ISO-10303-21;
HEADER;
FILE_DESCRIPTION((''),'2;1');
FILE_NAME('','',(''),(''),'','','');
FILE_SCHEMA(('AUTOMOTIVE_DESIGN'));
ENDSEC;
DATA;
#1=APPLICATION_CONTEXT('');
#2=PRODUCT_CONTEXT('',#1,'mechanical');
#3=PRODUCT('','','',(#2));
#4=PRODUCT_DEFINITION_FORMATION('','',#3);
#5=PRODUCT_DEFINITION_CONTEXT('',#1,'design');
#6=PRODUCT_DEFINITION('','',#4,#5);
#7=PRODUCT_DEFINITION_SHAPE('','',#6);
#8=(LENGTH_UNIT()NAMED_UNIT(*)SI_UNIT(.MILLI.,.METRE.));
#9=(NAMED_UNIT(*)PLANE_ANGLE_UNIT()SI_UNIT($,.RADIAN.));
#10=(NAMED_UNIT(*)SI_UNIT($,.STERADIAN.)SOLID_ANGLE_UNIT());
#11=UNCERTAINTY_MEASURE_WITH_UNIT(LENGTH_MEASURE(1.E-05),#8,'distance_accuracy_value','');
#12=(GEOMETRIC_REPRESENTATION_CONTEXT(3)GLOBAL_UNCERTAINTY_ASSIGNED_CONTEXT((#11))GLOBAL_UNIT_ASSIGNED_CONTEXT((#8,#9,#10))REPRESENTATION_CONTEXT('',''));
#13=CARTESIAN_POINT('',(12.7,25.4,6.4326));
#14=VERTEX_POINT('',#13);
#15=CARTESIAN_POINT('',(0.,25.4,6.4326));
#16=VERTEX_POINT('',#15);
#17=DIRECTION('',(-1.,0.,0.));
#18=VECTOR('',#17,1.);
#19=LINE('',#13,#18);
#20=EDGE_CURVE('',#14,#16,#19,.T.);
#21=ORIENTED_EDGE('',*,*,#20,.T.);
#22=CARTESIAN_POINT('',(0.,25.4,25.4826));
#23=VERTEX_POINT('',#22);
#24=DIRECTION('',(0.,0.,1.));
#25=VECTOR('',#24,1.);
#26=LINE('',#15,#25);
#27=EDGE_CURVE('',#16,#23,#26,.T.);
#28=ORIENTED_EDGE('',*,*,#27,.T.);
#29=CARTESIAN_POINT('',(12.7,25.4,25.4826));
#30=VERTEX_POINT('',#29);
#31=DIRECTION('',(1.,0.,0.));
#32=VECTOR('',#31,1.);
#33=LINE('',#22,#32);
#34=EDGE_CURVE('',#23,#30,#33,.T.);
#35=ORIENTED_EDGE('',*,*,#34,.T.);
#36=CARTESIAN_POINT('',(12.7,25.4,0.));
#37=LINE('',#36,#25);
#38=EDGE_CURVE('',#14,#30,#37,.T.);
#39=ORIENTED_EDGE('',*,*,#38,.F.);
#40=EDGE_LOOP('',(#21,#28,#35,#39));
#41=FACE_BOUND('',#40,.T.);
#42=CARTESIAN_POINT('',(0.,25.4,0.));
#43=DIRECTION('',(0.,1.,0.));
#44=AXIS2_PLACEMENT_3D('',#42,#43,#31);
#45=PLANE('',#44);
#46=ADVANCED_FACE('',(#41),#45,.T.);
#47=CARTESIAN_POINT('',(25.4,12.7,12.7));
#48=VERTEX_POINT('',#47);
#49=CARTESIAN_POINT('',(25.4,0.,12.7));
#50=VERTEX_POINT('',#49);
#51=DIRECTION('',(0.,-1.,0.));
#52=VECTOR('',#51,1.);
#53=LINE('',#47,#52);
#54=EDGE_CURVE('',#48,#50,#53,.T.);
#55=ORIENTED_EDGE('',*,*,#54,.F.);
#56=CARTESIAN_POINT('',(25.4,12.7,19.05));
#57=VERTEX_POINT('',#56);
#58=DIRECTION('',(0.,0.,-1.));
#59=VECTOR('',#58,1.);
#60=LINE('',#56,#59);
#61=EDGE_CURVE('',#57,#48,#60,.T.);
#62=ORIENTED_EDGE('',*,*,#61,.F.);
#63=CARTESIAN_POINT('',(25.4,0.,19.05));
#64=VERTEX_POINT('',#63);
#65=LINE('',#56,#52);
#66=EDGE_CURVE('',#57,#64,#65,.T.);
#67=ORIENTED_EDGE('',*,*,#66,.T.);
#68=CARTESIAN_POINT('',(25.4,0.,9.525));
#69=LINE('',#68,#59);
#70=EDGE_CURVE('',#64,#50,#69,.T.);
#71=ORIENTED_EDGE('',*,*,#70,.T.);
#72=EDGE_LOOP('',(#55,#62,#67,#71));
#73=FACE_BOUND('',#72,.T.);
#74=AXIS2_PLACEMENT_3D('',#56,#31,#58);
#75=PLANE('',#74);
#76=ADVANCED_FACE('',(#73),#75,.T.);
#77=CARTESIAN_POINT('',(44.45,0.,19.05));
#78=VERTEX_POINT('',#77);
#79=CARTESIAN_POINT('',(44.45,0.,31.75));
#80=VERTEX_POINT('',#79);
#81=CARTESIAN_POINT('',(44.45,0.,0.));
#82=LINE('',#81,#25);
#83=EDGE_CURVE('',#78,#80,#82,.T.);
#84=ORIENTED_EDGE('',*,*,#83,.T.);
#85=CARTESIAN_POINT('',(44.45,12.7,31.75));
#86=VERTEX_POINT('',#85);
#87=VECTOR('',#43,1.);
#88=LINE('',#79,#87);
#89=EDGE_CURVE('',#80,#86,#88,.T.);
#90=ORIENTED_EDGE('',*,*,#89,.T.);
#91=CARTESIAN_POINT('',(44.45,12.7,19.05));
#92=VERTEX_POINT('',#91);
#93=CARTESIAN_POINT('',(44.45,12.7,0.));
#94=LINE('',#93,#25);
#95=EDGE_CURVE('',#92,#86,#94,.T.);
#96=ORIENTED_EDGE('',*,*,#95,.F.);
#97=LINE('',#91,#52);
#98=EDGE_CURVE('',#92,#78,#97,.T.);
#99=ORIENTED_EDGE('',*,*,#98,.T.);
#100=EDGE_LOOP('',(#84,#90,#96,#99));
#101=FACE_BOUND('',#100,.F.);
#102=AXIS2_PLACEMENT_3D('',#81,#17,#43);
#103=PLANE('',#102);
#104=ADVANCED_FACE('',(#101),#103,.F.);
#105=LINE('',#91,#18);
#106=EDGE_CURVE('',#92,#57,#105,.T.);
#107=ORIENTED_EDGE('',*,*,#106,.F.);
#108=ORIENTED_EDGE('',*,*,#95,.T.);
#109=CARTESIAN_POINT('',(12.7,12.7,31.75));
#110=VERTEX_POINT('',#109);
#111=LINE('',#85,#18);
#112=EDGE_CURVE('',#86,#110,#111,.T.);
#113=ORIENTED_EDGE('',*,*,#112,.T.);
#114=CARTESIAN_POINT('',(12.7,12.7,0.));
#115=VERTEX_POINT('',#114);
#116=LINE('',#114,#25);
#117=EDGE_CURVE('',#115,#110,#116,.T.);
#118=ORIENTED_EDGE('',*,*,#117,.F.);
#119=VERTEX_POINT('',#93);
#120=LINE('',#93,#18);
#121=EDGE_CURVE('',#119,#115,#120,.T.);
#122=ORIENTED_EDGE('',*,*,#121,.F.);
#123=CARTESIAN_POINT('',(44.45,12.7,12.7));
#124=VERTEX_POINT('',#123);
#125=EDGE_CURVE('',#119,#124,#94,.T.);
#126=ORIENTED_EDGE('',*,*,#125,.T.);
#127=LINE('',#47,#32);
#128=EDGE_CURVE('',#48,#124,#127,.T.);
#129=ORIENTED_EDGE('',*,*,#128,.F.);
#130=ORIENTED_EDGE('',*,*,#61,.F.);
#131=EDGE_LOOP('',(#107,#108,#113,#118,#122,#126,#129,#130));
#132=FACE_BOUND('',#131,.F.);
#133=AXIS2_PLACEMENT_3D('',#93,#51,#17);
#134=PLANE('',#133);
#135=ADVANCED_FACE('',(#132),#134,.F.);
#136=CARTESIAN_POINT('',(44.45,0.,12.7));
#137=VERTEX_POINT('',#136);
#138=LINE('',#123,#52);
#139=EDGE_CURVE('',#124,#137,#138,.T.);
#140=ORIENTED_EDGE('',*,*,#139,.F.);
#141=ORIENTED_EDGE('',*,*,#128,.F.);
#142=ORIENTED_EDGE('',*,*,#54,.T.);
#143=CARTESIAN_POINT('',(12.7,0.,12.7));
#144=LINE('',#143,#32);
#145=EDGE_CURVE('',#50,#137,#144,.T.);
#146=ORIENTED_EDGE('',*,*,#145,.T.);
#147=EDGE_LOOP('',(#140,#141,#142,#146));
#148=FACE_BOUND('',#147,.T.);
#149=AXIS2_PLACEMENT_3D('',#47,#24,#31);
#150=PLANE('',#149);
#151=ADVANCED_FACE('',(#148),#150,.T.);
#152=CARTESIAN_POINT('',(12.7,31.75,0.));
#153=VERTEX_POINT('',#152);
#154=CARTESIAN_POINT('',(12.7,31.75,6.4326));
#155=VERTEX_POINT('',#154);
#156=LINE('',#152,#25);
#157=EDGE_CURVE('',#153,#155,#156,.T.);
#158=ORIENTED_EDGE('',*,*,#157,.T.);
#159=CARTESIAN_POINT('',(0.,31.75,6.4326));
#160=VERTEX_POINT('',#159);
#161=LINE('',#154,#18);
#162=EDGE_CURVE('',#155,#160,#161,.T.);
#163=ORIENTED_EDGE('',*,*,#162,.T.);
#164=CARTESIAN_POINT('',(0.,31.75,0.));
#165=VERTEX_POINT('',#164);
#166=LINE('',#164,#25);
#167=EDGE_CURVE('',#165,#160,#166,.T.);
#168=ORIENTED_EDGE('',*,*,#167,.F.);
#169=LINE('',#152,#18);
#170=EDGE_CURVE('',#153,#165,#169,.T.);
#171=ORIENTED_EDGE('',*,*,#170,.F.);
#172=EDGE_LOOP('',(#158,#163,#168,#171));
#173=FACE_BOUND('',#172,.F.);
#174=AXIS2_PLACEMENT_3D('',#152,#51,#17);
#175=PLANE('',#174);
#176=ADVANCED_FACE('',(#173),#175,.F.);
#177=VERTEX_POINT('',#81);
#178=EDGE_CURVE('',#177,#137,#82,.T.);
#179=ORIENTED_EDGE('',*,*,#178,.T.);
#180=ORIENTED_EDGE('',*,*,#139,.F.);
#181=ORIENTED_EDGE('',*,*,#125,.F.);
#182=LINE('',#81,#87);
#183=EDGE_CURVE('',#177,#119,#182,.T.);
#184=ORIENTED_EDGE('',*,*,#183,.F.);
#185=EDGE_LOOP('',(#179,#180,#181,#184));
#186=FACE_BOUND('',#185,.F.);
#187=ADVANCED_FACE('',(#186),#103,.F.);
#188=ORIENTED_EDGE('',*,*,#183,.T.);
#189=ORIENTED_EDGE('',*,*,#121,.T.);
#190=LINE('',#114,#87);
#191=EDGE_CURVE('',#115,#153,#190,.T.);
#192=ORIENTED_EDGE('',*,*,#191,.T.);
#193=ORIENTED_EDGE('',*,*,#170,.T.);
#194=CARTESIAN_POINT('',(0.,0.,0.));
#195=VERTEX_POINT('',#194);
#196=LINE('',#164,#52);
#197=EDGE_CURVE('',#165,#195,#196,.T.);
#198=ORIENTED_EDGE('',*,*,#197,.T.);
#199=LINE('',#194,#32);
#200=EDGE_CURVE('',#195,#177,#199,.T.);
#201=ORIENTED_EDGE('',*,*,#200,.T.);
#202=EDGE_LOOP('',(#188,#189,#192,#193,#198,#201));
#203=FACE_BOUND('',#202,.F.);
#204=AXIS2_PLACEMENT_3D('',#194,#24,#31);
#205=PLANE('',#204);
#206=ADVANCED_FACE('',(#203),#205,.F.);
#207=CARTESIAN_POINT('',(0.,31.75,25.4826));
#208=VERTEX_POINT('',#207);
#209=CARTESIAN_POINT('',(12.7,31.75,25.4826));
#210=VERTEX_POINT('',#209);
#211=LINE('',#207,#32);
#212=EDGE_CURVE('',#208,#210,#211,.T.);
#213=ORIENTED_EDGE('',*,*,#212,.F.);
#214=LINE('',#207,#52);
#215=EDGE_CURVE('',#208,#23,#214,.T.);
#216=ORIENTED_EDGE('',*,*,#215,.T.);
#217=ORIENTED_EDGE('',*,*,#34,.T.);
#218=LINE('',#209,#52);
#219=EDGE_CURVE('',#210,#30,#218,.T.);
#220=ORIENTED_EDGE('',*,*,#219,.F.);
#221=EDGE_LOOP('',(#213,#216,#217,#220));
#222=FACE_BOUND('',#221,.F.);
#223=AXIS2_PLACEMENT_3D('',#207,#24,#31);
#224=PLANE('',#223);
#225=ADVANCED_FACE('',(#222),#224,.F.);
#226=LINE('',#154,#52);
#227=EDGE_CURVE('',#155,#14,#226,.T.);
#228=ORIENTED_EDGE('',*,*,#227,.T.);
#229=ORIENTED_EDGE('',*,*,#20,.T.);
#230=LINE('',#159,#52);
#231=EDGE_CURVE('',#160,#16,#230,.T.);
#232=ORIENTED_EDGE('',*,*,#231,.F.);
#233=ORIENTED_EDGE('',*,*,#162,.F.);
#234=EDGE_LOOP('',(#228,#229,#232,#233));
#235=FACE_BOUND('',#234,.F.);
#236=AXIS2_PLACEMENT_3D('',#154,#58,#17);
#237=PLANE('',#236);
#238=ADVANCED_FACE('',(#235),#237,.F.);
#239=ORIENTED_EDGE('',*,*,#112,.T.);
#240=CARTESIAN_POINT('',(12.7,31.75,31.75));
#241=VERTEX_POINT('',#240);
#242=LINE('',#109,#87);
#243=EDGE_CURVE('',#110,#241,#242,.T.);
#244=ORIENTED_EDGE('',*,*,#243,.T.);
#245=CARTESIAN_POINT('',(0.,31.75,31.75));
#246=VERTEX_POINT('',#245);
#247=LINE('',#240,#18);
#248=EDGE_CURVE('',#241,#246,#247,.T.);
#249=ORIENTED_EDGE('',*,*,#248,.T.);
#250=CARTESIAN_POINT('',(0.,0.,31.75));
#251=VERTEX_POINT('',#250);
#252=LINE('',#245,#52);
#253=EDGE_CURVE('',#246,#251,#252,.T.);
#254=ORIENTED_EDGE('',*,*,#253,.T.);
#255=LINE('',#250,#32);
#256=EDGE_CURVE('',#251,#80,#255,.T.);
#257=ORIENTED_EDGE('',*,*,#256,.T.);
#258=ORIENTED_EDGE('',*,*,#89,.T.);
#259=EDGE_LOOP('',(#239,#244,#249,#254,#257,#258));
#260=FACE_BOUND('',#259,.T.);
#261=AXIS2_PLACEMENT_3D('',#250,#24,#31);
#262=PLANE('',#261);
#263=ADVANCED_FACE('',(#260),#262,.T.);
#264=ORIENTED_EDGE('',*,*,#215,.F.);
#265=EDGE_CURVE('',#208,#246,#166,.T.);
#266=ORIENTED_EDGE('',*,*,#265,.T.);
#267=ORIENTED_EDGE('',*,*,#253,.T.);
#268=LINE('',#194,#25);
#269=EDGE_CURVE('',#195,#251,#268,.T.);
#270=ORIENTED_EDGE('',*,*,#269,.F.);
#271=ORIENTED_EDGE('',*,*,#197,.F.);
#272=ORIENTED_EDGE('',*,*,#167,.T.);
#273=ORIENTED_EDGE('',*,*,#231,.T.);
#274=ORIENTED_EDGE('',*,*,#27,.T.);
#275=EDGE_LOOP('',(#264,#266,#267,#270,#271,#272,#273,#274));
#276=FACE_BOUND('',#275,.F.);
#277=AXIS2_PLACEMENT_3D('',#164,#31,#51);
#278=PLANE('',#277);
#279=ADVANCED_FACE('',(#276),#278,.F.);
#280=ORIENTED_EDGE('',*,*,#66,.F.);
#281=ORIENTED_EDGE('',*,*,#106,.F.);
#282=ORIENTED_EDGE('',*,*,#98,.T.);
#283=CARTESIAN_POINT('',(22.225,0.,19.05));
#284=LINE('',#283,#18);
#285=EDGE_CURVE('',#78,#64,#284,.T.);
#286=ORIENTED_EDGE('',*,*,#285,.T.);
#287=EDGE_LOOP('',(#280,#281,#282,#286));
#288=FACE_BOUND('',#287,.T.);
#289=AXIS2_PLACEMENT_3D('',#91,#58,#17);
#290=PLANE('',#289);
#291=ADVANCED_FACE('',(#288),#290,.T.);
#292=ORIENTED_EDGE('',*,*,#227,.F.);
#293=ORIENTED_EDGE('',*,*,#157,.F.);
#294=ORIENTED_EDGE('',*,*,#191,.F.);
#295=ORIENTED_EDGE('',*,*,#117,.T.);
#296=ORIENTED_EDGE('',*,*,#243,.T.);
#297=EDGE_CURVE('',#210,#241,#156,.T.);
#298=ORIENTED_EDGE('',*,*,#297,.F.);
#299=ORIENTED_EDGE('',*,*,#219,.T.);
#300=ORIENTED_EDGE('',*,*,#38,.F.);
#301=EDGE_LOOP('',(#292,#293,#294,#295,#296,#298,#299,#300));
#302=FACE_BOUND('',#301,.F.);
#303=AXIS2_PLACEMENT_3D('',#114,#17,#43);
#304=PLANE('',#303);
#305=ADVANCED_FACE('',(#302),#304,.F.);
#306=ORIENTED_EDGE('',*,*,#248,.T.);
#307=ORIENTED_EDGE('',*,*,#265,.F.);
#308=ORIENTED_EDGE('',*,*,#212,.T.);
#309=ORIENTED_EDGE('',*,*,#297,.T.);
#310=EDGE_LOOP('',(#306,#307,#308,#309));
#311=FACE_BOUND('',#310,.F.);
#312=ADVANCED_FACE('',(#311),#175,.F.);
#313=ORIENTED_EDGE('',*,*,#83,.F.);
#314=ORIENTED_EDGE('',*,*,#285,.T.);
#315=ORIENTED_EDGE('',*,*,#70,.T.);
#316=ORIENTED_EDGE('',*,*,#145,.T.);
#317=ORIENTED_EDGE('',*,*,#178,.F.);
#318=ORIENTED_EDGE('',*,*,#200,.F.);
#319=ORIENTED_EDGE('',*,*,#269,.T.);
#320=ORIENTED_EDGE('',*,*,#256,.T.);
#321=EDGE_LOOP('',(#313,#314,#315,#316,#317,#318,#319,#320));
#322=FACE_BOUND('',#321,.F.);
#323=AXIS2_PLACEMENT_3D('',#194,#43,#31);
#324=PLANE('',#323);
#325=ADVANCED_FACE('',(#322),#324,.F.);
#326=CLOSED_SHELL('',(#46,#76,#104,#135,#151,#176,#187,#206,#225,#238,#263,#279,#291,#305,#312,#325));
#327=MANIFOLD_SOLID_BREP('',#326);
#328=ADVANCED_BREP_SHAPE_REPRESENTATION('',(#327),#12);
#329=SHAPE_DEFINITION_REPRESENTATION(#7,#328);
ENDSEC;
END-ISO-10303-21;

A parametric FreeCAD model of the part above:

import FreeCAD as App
import Part
import Sketcher
from FreeCAD import Vector
Q = App.Units.Quantity


def add_polygon(sketch, points):
    """Adds a closed chain of lines whose ends are joined by coincident constraints."""
    first, n = sketch.GeometryCount, len(points)
    for a, b in zip(points, points[1:] + points[:1]):
        sketch.addGeometry(Part.LineSegment(App.Vector(*a, 0), App.Vector(*b, 0)), False)
    for i in range(n):
        sketch.addConstraint(Sketcher.Constraint("Coincident", first + i, 2, first + (i + 1) % n, 1))

doc = App.newDocument("Part")
body = doc.addObject("PartDesign::Body", "Body")

sketch1 = doc.addObject("Sketcher::SketchObject", "Sketch")
body.addObject(sketch1)
sketch1.AttachmentSupport = (doc.XY_Plane, [""])
sketch1.MapMode = "FlatFace"
add_polygon(sketch1, [(0, 32), (0, 0), (44, 0), (44, 13), (13, 13), (13, 32)])
sketch1.addConstraint(Sketcher.Constraint("Vertical", 0))
sketch1.addConstraint(Sketcher.Constraint("Horizontal", 1))
sketch1.addConstraint(Sketcher.Constraint("Vertical", 2))
sketch1.addConstraint(Sketcher.Constraint("Horizontal", 3))
sketch1.addConstraint(Sketcher.Constraint("Vertical", 4))
sketch1.addConstraint(Sketcher.Constraint("Horizontal", 5))
sketch1.addConstraint(Sketcher.Constraint("Coincident", 0, 2, -1, 1))
sketch1.addConstraint(Sketcher.Constraint("Equal", 3, 0))
sketch1.addConstraint(Sketcher.Constraint("Equal", 5, 2))
sketch1.addConstraint(Sketcher.Constraint("DistanceX", 5, 2, 5, 1, Q("0.5 in")))
sketch1.addConstraint(Sketcher.Constraint("DistanceX", 1, 1, 1, 2, Q("1.75 in")))
pad1 = doc.addObject("PartDesign::Pad", "Pad")
body.addObject(pad1)
pad1.Profile = sketch1
pad1.Length = Q("1.25 in")

sketch2 = doc.addObject("Sketcher::SketchObject", "Sketch001")
body.addObject(sketch2)
sketch2.AttachmentSupport = (doc.XZ_Plane, [""])
sketch2.MapMode = "FlatFace"
sketch2.AttachmentOffset = App.Placement(Vector(0, 0, -1.25 * 25.4), App.Rotation())
add_polygon(sketch2, [(0, 6), (0, 25), (13, 25), (13, 6)])
sketch2.addConstraint(Sketcher.Constraint("Vertical", 0))
sketch2.addConstraint(Sketcher.Constraint("Horizontal", 1))
sketch2.addConstraint(Sketcher.Constraint("Vertical", 2))
sketch2.addConstraint(Sketcher.Constraint("Horizontal", 3))
sketch2.addConstraint(Sketcher.Constraint("PointOnObject", 0, 2, -2))
sketch2.addConstraint(Sketcher.Constraint("DistanceY", 0, 1, 0, 2, Q("0.75 in")))
sketch2.addConstraint(Sketcher.Constraint("DistanceX", 1, 1, 1, 2, Q("0.5 in")))
sketch2.addConstraint(Sketcher.Constraint("DistanceY", -1, 1, 0, 2, Q("25.4826 mm")))
pocket1 = doc.addObject("PartDesign::Pocket", "Pocket")
body.addObject(pocket1)
pocket1.Profile = sketch2
pocket1.Length = Q("0.25 in")
pocket1.Reversed = True

sketch3 = doc.addObject("Sketcher::SketchObject", "Sketch002")
body.addObject(sketch3)
sketch3.AttachmentSupport = (doc.XZ_Plane, [""])
sketch3.MapMode = "FlatFace"
sketch3.AttachmentOffset = App.Placement(Vector(0, 0, -0.5 * 25.4), App.Rotation())
add_polygon(sketch3, [(25, 19), (44, 19), (44, 13), (25, 13)])
sketch3.addConstraint(Sketcher.Constraint("Horizontal", 0))
sketch3.addConstraint(Sketcher.Constraint("Vertical", 1))
sketch3.addConstraint(Sketcher.Constraint("Horizontal", 2))
sketch3.addConstraint(Sketcher.Constraint("Vertical", 3))
sketch3.addConstraint(Sketcher.Constraint("DistanceX", 0, 1, 0, 2, Q("0.75 in")))
sketch3.addConstraint(Sketcher.Constraint("DistanceY", 1, 2, 1, 1, Q("0.25 in")))
sketch3.addConstraint(Sketcher.Constraint("DistanceY", -1, 1, 1, 2, Q("0.5 in")))
sketch3.addConstraint(Sketcher.Constraint("DistanceX", -1, 1, 2, 2, Q("1 in")))
pocket2 = doc.addObject("PartDesign::Pocket", "Pocket001")
body.addObject(pocket2)
pocket2.Profile = sketch3
pocket2.Length = Q("0.75 in")
pocket2.Reversed = True

doc.recompute()
